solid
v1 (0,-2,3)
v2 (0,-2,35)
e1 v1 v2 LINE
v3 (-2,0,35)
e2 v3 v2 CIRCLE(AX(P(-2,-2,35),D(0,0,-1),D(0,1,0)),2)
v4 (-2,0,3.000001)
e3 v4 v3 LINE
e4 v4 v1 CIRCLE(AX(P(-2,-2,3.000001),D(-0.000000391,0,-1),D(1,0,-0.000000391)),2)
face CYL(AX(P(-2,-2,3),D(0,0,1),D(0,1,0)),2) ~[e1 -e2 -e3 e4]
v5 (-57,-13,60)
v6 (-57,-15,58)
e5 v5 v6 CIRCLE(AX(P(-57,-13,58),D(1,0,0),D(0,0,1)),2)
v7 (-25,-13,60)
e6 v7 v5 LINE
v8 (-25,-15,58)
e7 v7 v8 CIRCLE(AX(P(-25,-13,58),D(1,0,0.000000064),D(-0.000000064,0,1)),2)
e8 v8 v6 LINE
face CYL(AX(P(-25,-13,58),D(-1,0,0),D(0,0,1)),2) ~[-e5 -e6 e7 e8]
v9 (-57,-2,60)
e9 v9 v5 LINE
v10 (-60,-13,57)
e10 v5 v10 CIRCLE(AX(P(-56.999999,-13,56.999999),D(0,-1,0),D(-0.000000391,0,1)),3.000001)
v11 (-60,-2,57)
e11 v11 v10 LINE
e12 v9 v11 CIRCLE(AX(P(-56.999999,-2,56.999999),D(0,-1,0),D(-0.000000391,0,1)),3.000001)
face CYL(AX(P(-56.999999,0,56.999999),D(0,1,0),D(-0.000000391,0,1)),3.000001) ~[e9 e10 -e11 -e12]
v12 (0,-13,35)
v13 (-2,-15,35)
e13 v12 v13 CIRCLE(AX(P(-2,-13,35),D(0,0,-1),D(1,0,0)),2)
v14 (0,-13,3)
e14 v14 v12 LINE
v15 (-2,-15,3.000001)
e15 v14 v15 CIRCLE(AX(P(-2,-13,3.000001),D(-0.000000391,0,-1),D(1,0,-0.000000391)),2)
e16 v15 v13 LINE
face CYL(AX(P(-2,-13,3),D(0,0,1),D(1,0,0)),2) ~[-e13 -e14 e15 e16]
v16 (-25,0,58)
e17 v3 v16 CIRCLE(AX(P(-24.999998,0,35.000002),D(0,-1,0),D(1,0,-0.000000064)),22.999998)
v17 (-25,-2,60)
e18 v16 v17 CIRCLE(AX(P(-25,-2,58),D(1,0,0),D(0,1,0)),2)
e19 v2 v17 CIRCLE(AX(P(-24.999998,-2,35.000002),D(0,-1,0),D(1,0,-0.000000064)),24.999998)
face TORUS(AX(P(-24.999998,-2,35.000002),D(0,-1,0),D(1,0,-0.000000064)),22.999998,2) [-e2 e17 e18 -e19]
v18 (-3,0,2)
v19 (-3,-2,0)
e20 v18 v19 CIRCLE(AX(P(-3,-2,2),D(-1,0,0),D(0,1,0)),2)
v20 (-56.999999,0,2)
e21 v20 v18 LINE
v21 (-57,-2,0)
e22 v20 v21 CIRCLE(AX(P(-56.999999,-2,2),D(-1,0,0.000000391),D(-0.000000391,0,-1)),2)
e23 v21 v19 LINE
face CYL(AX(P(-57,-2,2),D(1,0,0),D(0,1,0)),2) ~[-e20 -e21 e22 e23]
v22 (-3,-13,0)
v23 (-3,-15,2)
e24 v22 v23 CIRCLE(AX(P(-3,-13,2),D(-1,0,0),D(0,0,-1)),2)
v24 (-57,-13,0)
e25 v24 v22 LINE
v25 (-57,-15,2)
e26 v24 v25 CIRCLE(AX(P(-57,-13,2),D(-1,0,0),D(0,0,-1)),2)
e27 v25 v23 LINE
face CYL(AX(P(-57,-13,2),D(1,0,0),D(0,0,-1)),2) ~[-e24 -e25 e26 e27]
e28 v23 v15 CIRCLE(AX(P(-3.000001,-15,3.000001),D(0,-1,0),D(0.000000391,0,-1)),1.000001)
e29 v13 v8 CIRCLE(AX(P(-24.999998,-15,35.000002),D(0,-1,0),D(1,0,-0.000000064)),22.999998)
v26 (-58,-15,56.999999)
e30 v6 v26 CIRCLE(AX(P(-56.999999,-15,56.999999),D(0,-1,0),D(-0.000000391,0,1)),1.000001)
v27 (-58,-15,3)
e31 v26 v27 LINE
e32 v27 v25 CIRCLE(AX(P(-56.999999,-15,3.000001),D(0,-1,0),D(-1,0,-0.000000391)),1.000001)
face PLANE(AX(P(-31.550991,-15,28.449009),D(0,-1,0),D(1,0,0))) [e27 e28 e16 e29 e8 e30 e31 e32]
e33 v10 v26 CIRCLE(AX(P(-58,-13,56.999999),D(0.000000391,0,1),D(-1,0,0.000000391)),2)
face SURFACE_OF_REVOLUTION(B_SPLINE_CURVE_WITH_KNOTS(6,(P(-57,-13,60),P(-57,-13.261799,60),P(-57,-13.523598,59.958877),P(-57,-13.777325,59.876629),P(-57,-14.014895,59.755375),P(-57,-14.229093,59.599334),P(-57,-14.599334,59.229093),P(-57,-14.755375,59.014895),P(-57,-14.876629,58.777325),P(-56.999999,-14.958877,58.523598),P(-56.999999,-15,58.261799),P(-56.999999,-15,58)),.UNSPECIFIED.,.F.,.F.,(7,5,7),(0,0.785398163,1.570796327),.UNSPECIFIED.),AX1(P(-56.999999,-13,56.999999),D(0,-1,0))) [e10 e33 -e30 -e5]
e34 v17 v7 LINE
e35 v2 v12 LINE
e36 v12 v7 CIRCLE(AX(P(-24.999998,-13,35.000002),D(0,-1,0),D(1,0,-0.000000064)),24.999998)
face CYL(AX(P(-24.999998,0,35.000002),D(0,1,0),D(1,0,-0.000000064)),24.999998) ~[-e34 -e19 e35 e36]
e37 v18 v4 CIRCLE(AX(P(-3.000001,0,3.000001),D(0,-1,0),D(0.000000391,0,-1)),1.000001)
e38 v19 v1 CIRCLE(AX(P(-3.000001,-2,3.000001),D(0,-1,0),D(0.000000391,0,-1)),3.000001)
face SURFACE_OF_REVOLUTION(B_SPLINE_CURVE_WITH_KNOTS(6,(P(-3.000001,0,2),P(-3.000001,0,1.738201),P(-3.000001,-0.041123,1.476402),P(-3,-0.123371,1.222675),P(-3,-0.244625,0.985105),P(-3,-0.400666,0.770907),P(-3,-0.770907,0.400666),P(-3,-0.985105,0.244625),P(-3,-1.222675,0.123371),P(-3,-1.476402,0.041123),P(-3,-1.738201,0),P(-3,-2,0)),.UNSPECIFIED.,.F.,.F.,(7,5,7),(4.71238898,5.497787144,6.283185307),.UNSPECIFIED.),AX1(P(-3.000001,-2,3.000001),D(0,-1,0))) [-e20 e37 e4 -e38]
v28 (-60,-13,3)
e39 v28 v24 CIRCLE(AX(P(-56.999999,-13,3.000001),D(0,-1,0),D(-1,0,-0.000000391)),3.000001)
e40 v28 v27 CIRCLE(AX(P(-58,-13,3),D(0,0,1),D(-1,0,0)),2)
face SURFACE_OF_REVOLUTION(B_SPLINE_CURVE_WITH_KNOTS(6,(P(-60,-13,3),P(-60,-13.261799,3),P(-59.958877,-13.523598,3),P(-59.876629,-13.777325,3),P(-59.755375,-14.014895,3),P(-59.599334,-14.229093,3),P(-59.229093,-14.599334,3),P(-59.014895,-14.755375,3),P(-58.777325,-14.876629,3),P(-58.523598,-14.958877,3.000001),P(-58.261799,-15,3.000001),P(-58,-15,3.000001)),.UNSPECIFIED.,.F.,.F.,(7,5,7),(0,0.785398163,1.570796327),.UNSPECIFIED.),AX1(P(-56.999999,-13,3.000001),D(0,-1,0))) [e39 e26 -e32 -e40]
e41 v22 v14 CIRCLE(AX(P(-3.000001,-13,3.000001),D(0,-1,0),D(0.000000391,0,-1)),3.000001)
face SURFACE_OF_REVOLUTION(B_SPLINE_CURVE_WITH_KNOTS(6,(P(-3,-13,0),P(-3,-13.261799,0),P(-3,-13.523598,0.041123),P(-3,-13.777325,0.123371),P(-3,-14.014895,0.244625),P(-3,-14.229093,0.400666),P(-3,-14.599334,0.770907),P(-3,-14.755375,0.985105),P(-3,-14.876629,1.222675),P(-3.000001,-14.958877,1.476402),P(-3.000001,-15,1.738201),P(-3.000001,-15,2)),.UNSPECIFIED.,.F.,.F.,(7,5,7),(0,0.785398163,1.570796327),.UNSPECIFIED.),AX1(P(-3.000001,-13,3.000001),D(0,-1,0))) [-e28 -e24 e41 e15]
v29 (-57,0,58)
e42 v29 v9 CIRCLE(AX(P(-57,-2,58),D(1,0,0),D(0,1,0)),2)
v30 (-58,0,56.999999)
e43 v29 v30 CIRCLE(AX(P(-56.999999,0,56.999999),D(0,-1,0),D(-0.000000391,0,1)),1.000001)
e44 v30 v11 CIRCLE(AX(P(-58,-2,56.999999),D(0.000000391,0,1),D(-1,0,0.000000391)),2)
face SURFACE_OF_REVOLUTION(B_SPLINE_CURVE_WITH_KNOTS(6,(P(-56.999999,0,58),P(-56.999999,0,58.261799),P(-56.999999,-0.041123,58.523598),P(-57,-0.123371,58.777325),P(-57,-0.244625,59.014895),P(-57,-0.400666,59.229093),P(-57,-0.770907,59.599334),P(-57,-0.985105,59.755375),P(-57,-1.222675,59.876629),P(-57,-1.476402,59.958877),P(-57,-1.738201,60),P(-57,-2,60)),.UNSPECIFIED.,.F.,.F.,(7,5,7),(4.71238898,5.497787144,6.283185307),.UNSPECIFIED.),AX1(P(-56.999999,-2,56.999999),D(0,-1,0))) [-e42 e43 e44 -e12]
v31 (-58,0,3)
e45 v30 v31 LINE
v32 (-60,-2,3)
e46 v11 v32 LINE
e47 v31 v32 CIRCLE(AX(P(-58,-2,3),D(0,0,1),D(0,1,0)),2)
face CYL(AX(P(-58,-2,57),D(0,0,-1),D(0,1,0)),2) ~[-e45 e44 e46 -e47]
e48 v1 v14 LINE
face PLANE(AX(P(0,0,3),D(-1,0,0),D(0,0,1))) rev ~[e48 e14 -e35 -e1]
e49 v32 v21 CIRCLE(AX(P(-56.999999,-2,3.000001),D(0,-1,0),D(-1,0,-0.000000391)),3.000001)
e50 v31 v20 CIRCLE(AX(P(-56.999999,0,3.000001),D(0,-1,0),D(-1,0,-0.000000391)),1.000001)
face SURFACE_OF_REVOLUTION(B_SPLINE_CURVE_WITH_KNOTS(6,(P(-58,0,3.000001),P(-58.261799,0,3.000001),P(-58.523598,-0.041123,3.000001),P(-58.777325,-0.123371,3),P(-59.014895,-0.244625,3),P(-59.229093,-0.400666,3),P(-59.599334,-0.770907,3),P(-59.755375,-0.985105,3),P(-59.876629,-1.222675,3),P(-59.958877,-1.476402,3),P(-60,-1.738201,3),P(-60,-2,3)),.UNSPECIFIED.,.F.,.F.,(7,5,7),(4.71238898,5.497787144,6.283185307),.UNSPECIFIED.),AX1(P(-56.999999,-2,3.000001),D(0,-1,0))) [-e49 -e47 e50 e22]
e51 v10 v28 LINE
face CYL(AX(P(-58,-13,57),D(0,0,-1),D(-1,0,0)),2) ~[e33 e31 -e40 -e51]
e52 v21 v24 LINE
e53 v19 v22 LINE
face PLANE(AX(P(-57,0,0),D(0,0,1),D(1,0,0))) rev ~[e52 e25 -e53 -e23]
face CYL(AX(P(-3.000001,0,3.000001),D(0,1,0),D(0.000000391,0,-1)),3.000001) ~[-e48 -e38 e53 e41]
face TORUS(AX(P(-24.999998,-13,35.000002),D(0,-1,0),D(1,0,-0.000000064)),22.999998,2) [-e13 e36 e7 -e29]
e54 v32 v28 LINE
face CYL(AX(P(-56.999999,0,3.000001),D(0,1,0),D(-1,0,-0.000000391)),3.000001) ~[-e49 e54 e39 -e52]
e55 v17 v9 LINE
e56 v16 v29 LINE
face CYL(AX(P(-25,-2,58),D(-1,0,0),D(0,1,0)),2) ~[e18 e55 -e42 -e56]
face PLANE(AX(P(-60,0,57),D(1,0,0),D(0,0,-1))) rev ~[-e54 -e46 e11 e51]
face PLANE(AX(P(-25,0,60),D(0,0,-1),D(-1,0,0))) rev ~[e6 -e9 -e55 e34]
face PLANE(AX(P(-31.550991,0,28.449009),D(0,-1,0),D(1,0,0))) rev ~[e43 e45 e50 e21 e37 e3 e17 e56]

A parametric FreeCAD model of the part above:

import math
import FreeCAD as App
import Part
import Sketcher
from FreeCAD import Vector


def edges_at(feature, points):
    """Names of the edges that pass closest to the given points."""
    edges = feature.Shape.Edges
    near = lambda p: min(range(len(edges)), key=lambda i: edges[i].distToShape(Part.Vertex(*p))[0])
    return sorted({f"Edge{near(p) + 1}" for p in points})

doc = App.newDocument("Part")
body = doc.addObject("PartDesign::Body", "Body")

sketch1 = doc.addObject("Sketcher::SketchObject", "Sketch")
body.addObject(sketch1)
sketch1.AttachmentSupport = (doc.XZ_Plane, [""])
sketch1.MapMode = "FlatFace"
sketch1.addGeometry([
    Part.LineSegment(Vector(-57, 0, 0), Vector(-3, 0, 0)),
    Part.ArcOfCircle(Part.Circle(Vector(-3, 3, 0), Vector(0, 0, 1), 3), math.radians(-90), math.radians(0)),
    Part.LineSegment(Vector(0, 3, 0), Vector(0, 35, 0)),
    Part.ArcOfCircle(Part.Circle(Vector(-25, 35, 0), Vector(0, 0, 1), 25), math.radians(0), math.radians(90)),
    Part.LineSegment(Vector(-25, 60, 0), Vector(-57, 60, 0)),
    Part.ArcOfCircle(Part.Circle(Vector(-57, 57, 0), Vector(0, 0, 1), 3), math.radians(90), math.radians(180)),
    Part.LineSegment(Vector(-60, 57, 0), Vector(-60, 3, 0)),
    Part.ArcOfCircle(Part.Circle(Vector(-57, 3, 0), Vector(0, 0, 1), 3), math.radians(-180), math.radians(-90)),
], False)
sketch1.addConstraint([
    Sketcher.Constraint("Tangent", 0, 2, 1, 1),
    Sketcher.Constraint("Tangent", 1, 2, 2, 1),
    Sketcher.Constraint("Tangent", 2, 2, 3, 1),
    Sketcher.Constraint("Tangent", 3, 2, 4, 1),
    Sketcher.Constraint("Tangent", 4, 2, 5, 1),
    Sketcher.Constraint("Tangent", 5, 2, 6, 1),
    Sketcher.Constraint("Tangent", 6, 2, 7, 1),
    Sketcher.Constraint("Tangent", 7, 2, 0, 1),
    Sketcher.Constraint("Horizontal", 0),
    Sketcher.Constraint("Vertical", 2),
    Sketcher.Constraint("Horizontal", 4),
    Sketcher.Constraint("Vertical", 6),
    Sketcher.Constraint("Equal", 1, 5),
    Sketcher.Constraint("Equal", 5, 7),
    Sketcher.Constraint("PointOnObject", 0, 2, -1),
    Sketcher.Constraint("PointOnObject", 1, 2, -2),
    Sketcher.Constraint("Equal", 4, 2),
    Sketcher.Constraint("Radius", 1, 3.000001),
    Sketcher.Constraint("Radius", 3, 24.999998),
    Sketcher.Constraint("DistanceX", 0, 1, 0, 2, 54.0),
])
pad1 = doc.addObject("PartDesign::Pad", "Pad")
body.addObject(pad1)
pad1.Profile = sketch1
pad1.Length = 15
doc.recompute()

fillet = doc.addObject("PartDesign::Fillet", "Fillet")
body.addObject(fillet)
fillet.Base = (pad1, edges_at(pad1, [
    (-30, -15, 0),
    (-0.879, -15, 0.879),
    (0, -15, 19),
    (-7.322, -15, 52.678),
    (-41, -15, 60),
    (-59.121, -15, 59.121),
    (-60, -15, 30),
    (-59.121, -15, 0.879),
]))
fillet.Radius = 2
doc.recompute()

fillet2 = doc.addObject("PartDesign::Fillet", "Fillet001")
body.addObject(fillet2)
fillet2.Base = (fillet, edges_at(fillet, [(-41, 0, 60)]))
fillet2.Radius = 2

doc.recompute()
